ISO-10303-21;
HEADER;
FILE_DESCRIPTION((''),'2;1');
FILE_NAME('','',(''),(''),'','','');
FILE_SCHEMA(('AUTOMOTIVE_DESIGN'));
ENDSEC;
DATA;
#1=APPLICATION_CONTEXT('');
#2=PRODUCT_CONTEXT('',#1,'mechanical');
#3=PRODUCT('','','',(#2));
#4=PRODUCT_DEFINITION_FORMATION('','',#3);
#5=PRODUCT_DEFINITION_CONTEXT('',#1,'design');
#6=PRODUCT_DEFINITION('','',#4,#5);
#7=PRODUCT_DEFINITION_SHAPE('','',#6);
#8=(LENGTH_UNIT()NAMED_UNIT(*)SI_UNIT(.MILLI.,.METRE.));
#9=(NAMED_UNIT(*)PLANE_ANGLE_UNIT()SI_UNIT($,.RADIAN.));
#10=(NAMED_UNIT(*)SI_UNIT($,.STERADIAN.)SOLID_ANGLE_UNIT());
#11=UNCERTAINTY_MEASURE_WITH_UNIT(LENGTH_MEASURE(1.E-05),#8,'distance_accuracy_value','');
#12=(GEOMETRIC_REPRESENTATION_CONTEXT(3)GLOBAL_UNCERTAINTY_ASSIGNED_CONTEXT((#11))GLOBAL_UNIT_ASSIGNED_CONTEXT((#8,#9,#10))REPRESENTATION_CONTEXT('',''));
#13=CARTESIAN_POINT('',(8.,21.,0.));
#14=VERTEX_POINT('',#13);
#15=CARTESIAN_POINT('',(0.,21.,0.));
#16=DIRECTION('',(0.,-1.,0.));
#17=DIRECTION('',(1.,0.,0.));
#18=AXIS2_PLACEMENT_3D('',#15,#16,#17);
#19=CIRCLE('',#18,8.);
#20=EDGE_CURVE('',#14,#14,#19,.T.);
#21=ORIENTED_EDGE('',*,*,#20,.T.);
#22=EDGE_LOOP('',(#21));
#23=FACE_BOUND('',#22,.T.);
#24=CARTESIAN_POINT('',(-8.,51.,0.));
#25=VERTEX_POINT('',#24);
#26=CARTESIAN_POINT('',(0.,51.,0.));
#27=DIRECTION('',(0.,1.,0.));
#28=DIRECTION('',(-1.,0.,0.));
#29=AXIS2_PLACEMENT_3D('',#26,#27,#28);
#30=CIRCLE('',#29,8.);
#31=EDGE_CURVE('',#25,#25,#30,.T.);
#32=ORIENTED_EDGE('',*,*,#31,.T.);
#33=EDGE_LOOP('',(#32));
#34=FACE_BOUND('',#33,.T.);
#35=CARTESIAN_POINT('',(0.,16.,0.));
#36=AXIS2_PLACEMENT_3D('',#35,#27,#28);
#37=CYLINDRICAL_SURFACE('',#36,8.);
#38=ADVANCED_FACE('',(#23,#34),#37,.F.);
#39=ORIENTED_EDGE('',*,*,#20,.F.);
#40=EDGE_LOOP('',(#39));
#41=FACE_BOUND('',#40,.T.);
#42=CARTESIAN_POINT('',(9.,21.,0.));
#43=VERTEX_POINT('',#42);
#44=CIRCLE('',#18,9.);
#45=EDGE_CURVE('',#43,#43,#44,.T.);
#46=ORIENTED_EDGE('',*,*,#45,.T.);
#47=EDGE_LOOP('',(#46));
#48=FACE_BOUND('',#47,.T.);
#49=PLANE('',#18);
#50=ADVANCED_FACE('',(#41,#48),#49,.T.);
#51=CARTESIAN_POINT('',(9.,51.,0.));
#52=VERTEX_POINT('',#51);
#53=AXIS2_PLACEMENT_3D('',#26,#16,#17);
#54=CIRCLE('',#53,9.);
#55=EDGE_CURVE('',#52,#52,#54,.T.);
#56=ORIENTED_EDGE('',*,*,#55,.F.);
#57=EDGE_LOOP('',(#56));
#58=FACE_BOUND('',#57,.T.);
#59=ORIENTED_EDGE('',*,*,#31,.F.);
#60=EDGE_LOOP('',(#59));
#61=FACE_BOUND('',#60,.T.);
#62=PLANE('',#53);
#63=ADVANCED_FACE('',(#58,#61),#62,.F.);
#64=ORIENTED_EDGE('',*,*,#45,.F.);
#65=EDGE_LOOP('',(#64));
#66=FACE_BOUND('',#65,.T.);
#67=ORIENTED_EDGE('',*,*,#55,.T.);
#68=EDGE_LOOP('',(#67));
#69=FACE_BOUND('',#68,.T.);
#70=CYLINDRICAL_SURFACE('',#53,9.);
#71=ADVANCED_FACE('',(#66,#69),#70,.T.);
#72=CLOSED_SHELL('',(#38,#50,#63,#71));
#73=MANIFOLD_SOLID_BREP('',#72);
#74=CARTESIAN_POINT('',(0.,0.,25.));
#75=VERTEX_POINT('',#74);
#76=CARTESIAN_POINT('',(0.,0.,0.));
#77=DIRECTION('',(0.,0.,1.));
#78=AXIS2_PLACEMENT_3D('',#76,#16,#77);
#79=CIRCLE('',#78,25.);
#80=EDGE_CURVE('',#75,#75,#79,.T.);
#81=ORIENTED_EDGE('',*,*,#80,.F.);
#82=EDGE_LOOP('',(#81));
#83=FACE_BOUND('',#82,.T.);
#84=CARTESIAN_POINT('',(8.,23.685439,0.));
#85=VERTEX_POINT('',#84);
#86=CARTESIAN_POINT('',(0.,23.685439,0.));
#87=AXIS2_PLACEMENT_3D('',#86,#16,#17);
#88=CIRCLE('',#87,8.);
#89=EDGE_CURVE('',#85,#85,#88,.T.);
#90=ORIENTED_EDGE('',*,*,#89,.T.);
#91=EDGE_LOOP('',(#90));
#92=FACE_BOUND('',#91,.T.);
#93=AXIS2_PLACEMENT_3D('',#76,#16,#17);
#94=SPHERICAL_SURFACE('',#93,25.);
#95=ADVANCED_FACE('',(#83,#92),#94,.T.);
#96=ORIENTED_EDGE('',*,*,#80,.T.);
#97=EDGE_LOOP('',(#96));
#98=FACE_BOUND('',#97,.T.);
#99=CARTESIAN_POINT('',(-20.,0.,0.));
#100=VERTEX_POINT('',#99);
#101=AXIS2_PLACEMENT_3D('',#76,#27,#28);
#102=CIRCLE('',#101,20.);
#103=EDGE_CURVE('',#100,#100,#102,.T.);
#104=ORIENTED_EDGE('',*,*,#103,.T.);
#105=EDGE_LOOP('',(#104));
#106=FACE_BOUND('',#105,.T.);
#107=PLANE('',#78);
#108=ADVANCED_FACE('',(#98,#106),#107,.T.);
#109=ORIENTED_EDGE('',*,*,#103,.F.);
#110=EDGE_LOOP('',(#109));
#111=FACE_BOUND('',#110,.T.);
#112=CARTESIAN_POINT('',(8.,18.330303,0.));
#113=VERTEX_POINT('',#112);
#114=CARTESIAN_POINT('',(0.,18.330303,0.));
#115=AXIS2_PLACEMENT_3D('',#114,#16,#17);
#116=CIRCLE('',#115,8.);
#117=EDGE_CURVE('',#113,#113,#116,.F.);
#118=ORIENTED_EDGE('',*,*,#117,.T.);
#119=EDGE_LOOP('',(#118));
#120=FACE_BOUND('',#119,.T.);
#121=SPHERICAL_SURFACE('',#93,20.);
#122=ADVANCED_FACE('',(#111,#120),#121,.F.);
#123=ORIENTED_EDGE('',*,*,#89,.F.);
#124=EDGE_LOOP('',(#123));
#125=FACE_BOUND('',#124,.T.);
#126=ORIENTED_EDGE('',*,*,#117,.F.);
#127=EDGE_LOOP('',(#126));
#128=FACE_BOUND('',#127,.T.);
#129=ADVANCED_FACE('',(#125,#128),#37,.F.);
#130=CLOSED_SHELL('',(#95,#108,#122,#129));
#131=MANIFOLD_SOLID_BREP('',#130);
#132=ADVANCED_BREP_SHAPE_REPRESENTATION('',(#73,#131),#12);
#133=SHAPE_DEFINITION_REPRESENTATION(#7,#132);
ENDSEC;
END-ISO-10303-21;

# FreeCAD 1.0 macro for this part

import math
import FreeCAD as App
import Part
import Sketcher

doc = App.newDocument("Part")
body = doc.addObject("PartDesign::Body", "Body")

# Sketch on XZ plane
sketch1 = doc.addObject("Sketcher::SketchObject", "Sketch")
body.addObject(sketch1)
sketch1.AttachmentSupport = (doc.XZ_Plane, [""])
sketch1.MapMode = "FlatFace"
sketch1.addGeometry(Part.LineSegment(App.Vector(0, -25, 0), App.Vector(0, 25, 0)), False)
sketch1.addGeometry(Part.ArcOfCircle(Part.Circle(App.Vector(0, 0, 0), App.Vector(0, 0, 1), 25), math.radians(-90), math.radians(90)), False)
sketch1.addConstraint(Sketcher.Constraint("Coincident", 0, 1, 1, 1))
sketch1.addConstraint(Sketcher.Constraint("Coincident", 1, 2, 0, 2))
sketch1.addConstraint(Sketcher.Constraint("Vertical", 0))
sketch1.addConstraint(Sketcher.Constraint("Coincident", 1, 3, -1, 1))
sketch1.addConstraint(Sketcher.Constraint("PointOnObject", 0, 1, -2))
sketch1.addConstraint(Sketcher.Constraint("Radius", 1, 25.0))
revolution = doc.addObject("PartDesign::Revolution", "Revolution")
body.addObject(revolution)
revolution.Profile = sketch1
revolution.ReferenceAxis = (sketch1, ["V_Axis"])
revolution.Angle = 180

# Sketch on XZ plane
sketch2 = doc.addObject("Sketcher::SketchObject", "Sketch001")
body.addObject(sketch2)
sketch2.AttachmentSupport = (doc.XZ_Plane, [""])
sketch2.MapMode = "FlatFace"
sketch2.addGeometry(Part.LineSegment(App.Vector(0, 20, 0), App.Vector(0, -20, 0)), False)
sketch2.addGeometry(Part.ArcOfCircle(Part.Circle(App.Vector(0, 0, 0), App.Vector(0, 0, 1), 20), math.radians(-90), math.radians(90)), False)
sketch2.addConstraint(Sketcher.Constraint("Coincident", 0, 1, 1, 2))
sketch2.addConstraint(Sketcher.Constraint("Coincident", 1, 1, 0, 2))
sketch2.addConstraint(Sketcher.Constraint("Vertical", 0))
sketch2.addConstraint(Sketcher.Constraint("Coincident", 1, 3, -1, 1))
sketch2.addConstraint(Sketcher.Constraint("PointOnObject", 0, 1, -2))
sketch2.addConstraint(Sketcher.Constraint("Radius", 1, 20.0))
groove = doc.addObject("PartDesign::Groove", "Groove")
body.addObject(groove)
groove.Profile = sketch2
groove.ReferenceAxis = (sketch2, ["V_Axis"])
groove.Angle = 180
body2 = doc.addObject("PartDesign::Body", "Body001")

# Sketch on XZ plane
sketch3 = doc.addObject("Sketcher::SketchObject", "Sketch002")
body2.addObject(sketch3)
sketch3.AttachmentSupport = (doc.getObject("XZ_Plane001"), [""])
sketch3.MapMode = "FlatFace"
sketch3.AttachmentOffset = App.Placement(App.Vector(0, 0, -21), App.Rotation())
sketch3.addGeometry(Part.Circle(App.Vector(0, 0, 0), App.Vector(0, 0, 1), 9), False)
sketch3.addConstraint(Sketcher.Constraint("Coincident", 0, 3, -1, 1))
sketch3.addConstraint(Sketcher.Constraint("Diameter", 0, 18.0))
pad1 = doc.addObject("PartDesign::Pad", "Pad")
body2.addObject(pad1)
pad1.Profile = sketch3
pad1.Length = 30
pad1.Reversed = True
body3 = doc.addObject("PartDesign::Body", "Body002")

# Sketch on XZ plane
sketch4 = doc.addObject("Sketcher::SketchObject", "Sketch003")
body3.addObject(sketch4)
sketch4.AttachmentSupport = (doc.getObject("XZ_Plane002"), [""])
sketch4.MapMode = "FlatFace"
sketch4.AttachmentOffset = App.Placement(App.Vector(0, 0, -51), App.Rotation())
sketch4.addGeometry(Part.Circle(App.Vector(0, 0, 0), App.Vector(0, 0, 1), 8), False)
sketch4.addConstraint(Sketcher.Constraint("Coincident", 0, 3, -1, 1))
sketch4.addConstraint(Sketcher.Constraint("Diameter", 0, 16.0))
pad2 = doc.addObject("PartDesign::Pad", "Pad001")
body3.addObject(pad2)
pad2.Profile = sketch4
pad2.Length = 35
doc.recompute()

body4 = doc.addObject("PartDesign::Body", "Body003")
body4.BaseFeature = body3
boolean = doc.addObject("PartDesign::Boolean", "Boolean")
body.addObject(boolean)
boolean.Type = "Cut"
boolean.addObjects([body4])
doc.recompute()

boolean2 = doc.addObject("PartDesign::Boolean", "Boolean001")
body2.addObject(boolean2)
boolean2.Type = "Cut"
boolean2.addObjects([body3])

doc.recompute()
